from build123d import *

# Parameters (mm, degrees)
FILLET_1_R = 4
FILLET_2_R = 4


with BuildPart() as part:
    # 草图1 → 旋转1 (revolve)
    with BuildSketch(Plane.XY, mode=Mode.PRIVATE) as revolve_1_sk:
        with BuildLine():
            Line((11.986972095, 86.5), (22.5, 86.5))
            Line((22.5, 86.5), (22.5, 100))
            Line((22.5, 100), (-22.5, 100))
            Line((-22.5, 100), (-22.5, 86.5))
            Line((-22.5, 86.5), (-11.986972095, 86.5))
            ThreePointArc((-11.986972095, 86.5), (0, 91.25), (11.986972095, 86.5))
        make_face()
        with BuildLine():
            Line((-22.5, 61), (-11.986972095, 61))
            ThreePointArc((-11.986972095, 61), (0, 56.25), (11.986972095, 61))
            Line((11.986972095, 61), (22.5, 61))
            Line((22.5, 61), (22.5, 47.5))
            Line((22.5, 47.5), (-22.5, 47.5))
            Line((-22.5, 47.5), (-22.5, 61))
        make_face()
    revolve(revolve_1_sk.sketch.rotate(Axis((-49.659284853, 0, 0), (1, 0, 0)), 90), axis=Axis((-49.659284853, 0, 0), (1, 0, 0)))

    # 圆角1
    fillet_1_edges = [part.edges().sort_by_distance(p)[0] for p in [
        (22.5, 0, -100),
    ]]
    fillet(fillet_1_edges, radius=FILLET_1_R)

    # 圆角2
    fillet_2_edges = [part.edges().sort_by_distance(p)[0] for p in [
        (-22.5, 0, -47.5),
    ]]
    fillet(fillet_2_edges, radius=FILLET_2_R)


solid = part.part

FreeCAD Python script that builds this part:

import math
import FreeCAD as App
import Part
import Sketcher


def edges_at(feature, points):
    """Names of the edges that pass closest to the given points."""
    edges = feature.Shape.Edges
    near = lambda p: min(range(len(edges)), key=lambda i: edges[i].distToShape(Part.Vertex(*p))[0])
    return sorted({f"Edge{near(p) + 1}" for p in points})

doc = App.newDocument("Part")
body = doc.addObject("PartDesign::Body", "Body")
body.AllowCompound = True

sketch1 = body.newObject("Sketcher::SketchObject", "Sketch")
sketch1.AttachmentSupport = (doc.getObject("XY_Plane"), [""])
sketch1.MapMode = "FlatFace"
sketch1.addGeometry([
    Part.LineSegment(App.Vector(11.986972, 86.5, 0), App.Vector(22.5, 86.5, 0)),
    Part.LineSegment(App.Vector(22.5, 86.5, 0), App.Vector(22.5, 100, 0)),
    Part.LineSegment(App.Vector(22.5, 100, 0), App.Vector(-22.5, 100, 0)),
    Part.LineSegment(App.Vector(-22.5, 100, 0), App.Vector(-22.5, 86.5, 0)),
    Part.LineSegment(App.Vector(-22.5, 86.5, 0), App.Vector(-11.986972, 86.5, 0)),
    Part.ArcOfCircle(Part.Circle(App.Vector(0, 73.75, 0), App.Vector(0, 0, 1), 17.5), math.radians(46.766765), math.radians(133.233235)),
    Part.LineSegment(App.Vector(-11.986972, 61, 0), App.Vector(-22.5, 61, 0)),
    Part.LineSegment(App.Vector(-22.5, 61, 0), App.Vector(-22.5, 47.5, 0)),
    Part.LineSegment(App.Vector(-22.5, 47.5, 0), App.Vector(22.5, 47.5, 0)),
    Part.LineSegment(App.Vector(22.5, 47.5, 0), App.Vector(22.5, 61, 0)),
    Part.LineSegment(App.Vector(22.5, 61, 0), App.Vector(11.986972, 61, 0)),
    Part.ArcOfCircle(Part.Circle(App.Vector(0, 73.75, 0), App.Vector(0, 0, 1), 17.5), math.radians(-133.233235), math.radians(-46.766765)),
], False)
sketch1.addConstraint([
    Sketcher.Constraint("Coincident", 0, 2, 1, 1),
    Sketcher.Constraint("Coincident", 1, 2, 2, 1),
    Sketcher.Constraint("Coincident", 2, 2, 3, 1),
    Sketcher.Constraint("Coincident", 3, 2, 4, 1),
    Sketcher.Constraint("Coincident", 4, 2, 5, 2),
    Sketcher.Constraint("Coincident", 5, 1, 0, 1),
    Sketcher.Constraint("Coincident", 6, 2, 7, 1),
    Sketcher.Constraint("Coincident", 7, 2, 8, 1),
    Sketcher.Constraint("Coincident", 8, 2, 9, 1),
    Sketcher.Constraint("Coincident", 9, 2, 10, 1),
    Sketcher.Constraint("Coincident", 10, 2, 11, 2),
    Sketcher.Constraint("Coincident", 11, 1, 6, 1),
    Sketcher.Constraint("Horizontal", 0),
    Sketcher.Constraint("Vertical", 1),
    Sketcher.Constraint("Horizontal", 2),
    Sketcher.Constraint("Vertical", 3),
    Sketcher.Constraint("Horizontal", 4),
    Sketcher.Constraint("Horizontal", 6),
    Sketcher.Constraint("Vertical", 7),
    Sketcher.Constraint("Horizontal", 8),
    Sketcher.Constraint("Vertical", 9),
    Sketcher.Constraint("Horizontal", 10),
    Sketcher.Constraint("Coincident", 11, 3, 5, 3),
    Sketcher.Constraint("Equal", 5, 11),
    Sketcher.Constraint("Symmetric", 0, 2, 3, 2, -2),
    Sketcher.Constraint("Symmetric", 6, 2, 9, 2, -2),
    Sketcher.Constraint("PointOnObject", 5, 3, -2),
    Sketcher.Constraint("Vertical", 3, 2, 6, 2),
    Sketcher.Constraint("Vertical", 5, 1, 10, 2),
    Sketcher.Constraint("Equal", 3, 7),
    Sketcher.Constraint("Radius", 5, 17.5),
    Sketcher.Constraint("DistanceX", 2, 2, 2, 1, 45.0),
    Sketcher.Constraint("DistanceY", 1, 1, 1, 2, 13.5),
    Sketcher.Constraint("DistanceY", -1, 1, 1, 2, 100.0),
    Sketcher.Constraint("DistanceY", -1, 1, 6, 2, 61.0),
])
revolution = body.newObject("PartDesign::Revolution", "Revolution")
revolution.Profile = sketch1
revolution.ReferenceAxis = (sketch1, ["H_Axis"])
revolution.Angle = 360
doc.recompute()

fillet = body.newObject("PartDesign::Fillet", "Fillet")
fillet.Base = (revolution, edges_at(revolution, [(22.5, 0, -100)]))
fillet.Radius = 4
doc.recompute()

fillet2 = body.newObject("PartDesign::Fillet", "Fillet001")
fillet2.Base = (fillet, edges_at(fillet, [(-22.5, 0, -47.5)]))
fillet2.Radius = 4

doc.recompute()
